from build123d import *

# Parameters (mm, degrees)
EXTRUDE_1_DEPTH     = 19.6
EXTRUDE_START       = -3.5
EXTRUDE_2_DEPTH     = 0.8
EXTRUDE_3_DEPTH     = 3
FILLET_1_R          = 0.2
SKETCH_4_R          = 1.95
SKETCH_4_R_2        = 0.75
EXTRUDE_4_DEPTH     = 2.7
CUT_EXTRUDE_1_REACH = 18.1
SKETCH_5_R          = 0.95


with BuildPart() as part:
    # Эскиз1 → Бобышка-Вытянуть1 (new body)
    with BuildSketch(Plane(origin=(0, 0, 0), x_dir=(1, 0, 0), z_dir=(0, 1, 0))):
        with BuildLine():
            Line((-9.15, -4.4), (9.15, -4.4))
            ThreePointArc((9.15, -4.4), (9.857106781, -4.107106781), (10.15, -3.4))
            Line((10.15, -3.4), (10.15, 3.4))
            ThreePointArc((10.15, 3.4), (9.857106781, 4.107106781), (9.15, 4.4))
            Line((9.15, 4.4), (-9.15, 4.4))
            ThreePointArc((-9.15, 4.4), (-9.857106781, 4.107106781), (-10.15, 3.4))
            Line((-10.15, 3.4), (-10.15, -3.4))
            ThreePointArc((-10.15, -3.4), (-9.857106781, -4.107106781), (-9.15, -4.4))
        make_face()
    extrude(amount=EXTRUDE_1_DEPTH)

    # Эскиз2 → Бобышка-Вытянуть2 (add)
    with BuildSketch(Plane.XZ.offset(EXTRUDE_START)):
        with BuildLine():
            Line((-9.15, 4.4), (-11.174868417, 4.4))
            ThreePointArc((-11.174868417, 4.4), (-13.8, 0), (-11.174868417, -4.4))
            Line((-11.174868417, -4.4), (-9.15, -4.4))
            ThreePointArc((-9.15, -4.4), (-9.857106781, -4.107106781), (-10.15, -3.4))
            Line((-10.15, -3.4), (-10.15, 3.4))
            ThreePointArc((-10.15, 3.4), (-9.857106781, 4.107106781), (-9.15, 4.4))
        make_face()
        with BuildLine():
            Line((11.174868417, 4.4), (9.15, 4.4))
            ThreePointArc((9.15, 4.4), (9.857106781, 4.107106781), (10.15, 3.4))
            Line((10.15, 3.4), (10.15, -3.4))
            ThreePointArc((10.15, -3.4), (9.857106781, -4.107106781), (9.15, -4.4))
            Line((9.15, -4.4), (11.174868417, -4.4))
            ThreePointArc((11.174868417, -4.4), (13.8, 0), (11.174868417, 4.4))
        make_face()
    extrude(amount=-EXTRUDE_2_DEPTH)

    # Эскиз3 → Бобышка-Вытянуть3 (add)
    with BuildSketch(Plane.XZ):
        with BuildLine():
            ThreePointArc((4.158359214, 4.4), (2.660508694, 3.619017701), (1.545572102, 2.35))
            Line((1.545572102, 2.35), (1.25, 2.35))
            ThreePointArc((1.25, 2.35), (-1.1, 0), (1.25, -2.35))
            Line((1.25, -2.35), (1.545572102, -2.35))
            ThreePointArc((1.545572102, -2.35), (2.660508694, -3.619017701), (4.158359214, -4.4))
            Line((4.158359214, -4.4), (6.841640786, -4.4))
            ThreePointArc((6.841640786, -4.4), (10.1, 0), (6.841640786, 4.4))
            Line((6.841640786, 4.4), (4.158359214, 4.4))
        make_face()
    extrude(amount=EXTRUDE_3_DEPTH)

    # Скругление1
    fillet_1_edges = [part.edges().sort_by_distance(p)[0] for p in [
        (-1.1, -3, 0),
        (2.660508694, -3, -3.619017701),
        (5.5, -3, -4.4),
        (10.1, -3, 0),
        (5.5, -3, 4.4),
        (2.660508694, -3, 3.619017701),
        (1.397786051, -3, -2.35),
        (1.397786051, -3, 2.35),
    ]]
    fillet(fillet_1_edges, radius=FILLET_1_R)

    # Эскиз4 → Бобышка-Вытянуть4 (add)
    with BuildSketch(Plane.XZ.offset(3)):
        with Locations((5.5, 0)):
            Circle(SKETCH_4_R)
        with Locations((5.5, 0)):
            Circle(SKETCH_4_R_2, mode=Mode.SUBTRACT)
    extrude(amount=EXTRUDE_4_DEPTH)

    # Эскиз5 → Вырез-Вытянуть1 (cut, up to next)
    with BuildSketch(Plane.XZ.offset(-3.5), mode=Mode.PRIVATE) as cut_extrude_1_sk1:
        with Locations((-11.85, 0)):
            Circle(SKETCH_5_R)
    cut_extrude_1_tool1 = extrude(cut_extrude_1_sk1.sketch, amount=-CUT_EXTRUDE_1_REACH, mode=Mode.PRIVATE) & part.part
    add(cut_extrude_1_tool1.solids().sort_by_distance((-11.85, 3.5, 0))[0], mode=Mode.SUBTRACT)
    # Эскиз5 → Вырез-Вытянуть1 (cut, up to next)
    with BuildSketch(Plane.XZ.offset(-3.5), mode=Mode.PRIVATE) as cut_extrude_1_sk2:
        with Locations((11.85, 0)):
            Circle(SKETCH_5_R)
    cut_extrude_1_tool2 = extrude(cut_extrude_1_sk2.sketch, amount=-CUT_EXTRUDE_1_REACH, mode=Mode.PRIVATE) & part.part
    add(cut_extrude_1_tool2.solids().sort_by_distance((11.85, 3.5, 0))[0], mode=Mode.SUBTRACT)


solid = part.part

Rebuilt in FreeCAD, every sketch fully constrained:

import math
import FreeCAD as App
import Part
import Sketcher
from FreeCAD import Vector


def edges_at(feature, points):
    """Names of the edges that pass closest to the given points."""
    edges = feature.Shape.Edges
    near = lambda p: min(range(len(edges)), key=lambda i: edges[i].distToShape(Part.Vertex(*p))[0])
    return sorted({f"Edge{near(p) + 1}" for p in points})

doc = App.newDocument("Part")
body = doc.addObject("PartDesign::Body", "Body")

sketch1 = doc.addObject("Sketcher::SketchObject", "Sketch")
body.addObject(sketch1)
sketch1.AttachmentSupport = (doc.XZ_Plane, [""])
sketch1.MapMode = "FlatFace"
sketch1.addGeometry(Part.LineSegment(Vector(-9.2, 4.4, 0), Vector(9.2, 4.4, 0)), False)
sketch1.addGeometry(Part.ArcOfCircle(Part.Circle(Vector(9.1, 3.4, 0), Vector(0, 0, 1), 1), math.radians(0), math.radians(90)), False)
sketch1.addGeometry(Part.LineSegment(Vector(10.2, 3.4, 0), Vector(10.2, -3.4, 0)), False)
sketch1.addGeometry(Part.ArcOfCircle(Part.Circle(Vector(9.1, -3.4, 0), Vector(0, 0, 1), 1), math.radians(-90), math.radians(0)), False)
sketch1.addGeometry(Part.LineSegment(Vector(9.2, -4.4, 0), Vector(-9.2, -4.4, 0)), False)
sketch1.addGeometry(Part.ArcOfCircle(Part.Circle(Vector(-9.1, -3.4, 0), Vector(0, 0, 1), 1), math.radians(-180), math.radians(-90)), False)
sketch1.addGeometry(Part.LineSegment(Vector(-10.2, -3.4, 0), Vector(-10.2, 3.4, 0)), False)
sketch1.addGeometry(Part.ArcOfCircle(Part.Circle(Vector(-9.1, 3.4, 0), Vector(0, 0, 1), 1), math.radians(90), math.radians(180)), False)
sketch1.addConstraint(Sketcher.Constraint("Tangent", 0, 2, 1, 2))
sketch1.addConstraint(Sketcher.Constraint("Tangent", 1, 1, 2, 1))
sketch1.addConstraint(Sketcher.Constraint("Tangent", 2, 2, 3, 2))
sketch1.addConstraint(Sketcher.Constraint("Tangent", 3, 1, 4, 1))
sketch1.addConstraint(Sketcher.Constraint("Tangent", 4, 2, 5, 2))
sketch1.addConstraint(Sketcher.Constraint("Tangent", 5, 1, 6, 1))
sketch1.addConstraint(Sketcher.Constraint("Tangent", 6, 2, 7, 2))
sketch1.addConstraint(Sketcher.Constraint("Tangent", 7, 1, 0, 1))
sketch1.addConstraint(Sketcher.Constraint("Horizontal", 0))
sketch1.addConstraint(Sketcher.Constraint("Vertical", 2))
sketch1.addConstraint(Sketcher.Constraint("Horizontal", 4))
sketch1.addConstraint(Sketcher.Constraint("Vertical", 6))
sketch1.addConstraint(Sketcher.Constraint("Equal", 1, 3))
sketch1.addConstraint(Sketcher.Constraint("Equal", 3, 5))
sketch1.addConstraint(Sketcher.Constraint("Equal", 5, 7))
sketch1.addConstraint(Sketcher.Constraint("Symmetric", 1, 3, 5, 3, -1, 1))
sketch1.addConstraint(Sketcher.Constraint("Radius", 1, 1.0))
sketch1.addConstraint(Sketcher.Constraint("DistanceX", 0, 1, 0, 2, 18.3))
sketch1.addConstraint(Sketcher.Constraint("DistanceY", 2, 2, 2, 1, 6.8))
pad1 = doc.addObject("PartDesign::Pad", "Pad")
body.addObject(pad1)
pad1.Profile = sketch1
pad1.Length = 19.6
pad1.Reversed = True

sketch2 = doc.addObject("Sketcher::SketchObject", "Sketch001")
body.addObject(sketch2)
sketch2.AttachmentSupport = (doc.XZ_Plane, [""])
sketch2.MapMode = "FlatFace"
sketch2.AttachmentOffset = App.Placement(Vector(0, 0, -3.5), App.Rotation())
sketch2.addGeometry(Part.LineSegment(Vector(-9.2, 4.4, 0), Vector(-11.2, 4.4, 0)), False)
sketch2.addGeometry(Part.ArcOfCircle(Part.Circle(Vector(-8.8, 0, 0), Vector(0, 0, 1), 5), math.radians(118), math.radians(242)), False)
sketch2.addGeometry(Part.LineSegment(Vector(-11.2, -4.4, 0), Vector(-9.2, -4.4, 0)), False)
sketch2.addGeometry(Part.ArcOfCircle(Part.Circle(Vector(-9.1, -3.4, 0), Vector(0, 0, 1), 1), math.radians(-180), math.radians(-90)), False)
sketch2.addGeometry(Part.LineSegment(Vector(-10.2, -3.4, 0), Vector(-10.2, 3.4, 0)), False)
sketch2.addGeometry(Part.ArcOfCircle(Part.Circle(Vector(-9.1, 3.4, 0), Vector(0, 0, 1), 1), math.radians(90), math.radians(180)), False)
sketch2.addGeometry(Part.LineSegment(Vector(11.2, 4.4, 0), Vector(9.2, 4.4, 0)), False)
sketch2.addGeometry(Part.ArcOfCircle(Part.Circle(Vector(9.1, 3.4, 0), Vector(0, 0, 1), 1), math.radians(0), math.radians(90)), False)
sketch2.addGeometry(Part.LineSegment(Vector(10.2, 3.4, 0), Vector(10.2, -3.4, 0)), False)
sketch2.addGeometry(Part.ArcOfCircle(Part.Circle(Vector(9.1, -3.4, 0), Vector(0, 0, 1), 1), math.radians(-90), math.radians(0)), False)
sketch2.addGeometry(Part.LineSegment(Vector(9.2, -4.4, 0), Vector(11.2, -4.4, 0)), False)
sketch2.addGeometry(Part.ArcOfCircle(Part.Circle(Vector(8.8, 0, 0), Vector(0, 0, 1), 5), math.radians(-62), math.radians(62)), False)
sketch2.addConstraint(Sketcher.Constraint("Coincident", 0, 2, 1, 1))
sketch2.addConstraint(Sketcher.Constraint("Coincident", 1, 2, 2, 1))
sketch2.addConstraint(Sketcher.Constraint("Tangent", 2, 2, 3, 2))
sketch2.addConstraint(Sketcher.Constraint("Tangent", 3, 1, 4, 1))
sketch2.addConstraint(Sketcher.Constraint("Tangent", 4, 2, 5, 2))
sketch2.addConstraint(Sketcher.Constraint("Tangent", 5, 1, 0, 1))
sketch2.addConstraint(Sketcher.Constraint("Tangent", 6, 2, 7, 2))
sketch2.addConstraint(Sketcher.Constraint("Tangent", 7, 1, 8, 1))
sketch2.addConstraint(Sketcher.Constraint("Tangent", 8, 2, 9, 2))
sketch2.addConstraint(Sketcher.Constraint("Tangent", 9, 1, 10, 1))
sketch2.addConstraint(Sketcher.Constraint("Coincident", 10, 2, 11, 1))
sketch2.addConstraint(Sketcher.Constraint("Coincident", 11, 2, 6, 1))
sketch2.addConstraint(Sketcher.Constraint("Horizontal", 0))
sketch2.addConstraint(Sketcher.Constraint("Horizontal", 2))
sketch2.addConstraint(Sketcher.Constraint("Vertical", 4))
sketch2.addConstraint(Sketcher.Constraint("Horizontal", 6))
sketch2.addConstraint(Sketcher.Constraint("Vertical", 8))
sketch2.addConstraint(Sketcher.Constraint("Horizontal", 10))
sketch2.addConstraint(Sketcher.Constraint("Equal", 3, 5))
sketch2.addConstraint(Sketcher.Constraint("Equal", 5, 7))
sketch2.addConstraint(Sketcher.Constraint("Equal", 7, 9))
sketch2.addConstraint(Sketcher.Constraint("Equal", 1, 11))
sketch2.addConstraint(Sketcher.Constraint("Symmetric", 3, 3, 7, 3, -1, 1))
sketch2.addConstraint(Sketcher.Constraint("Symmetric", 1, 3, 11, 3, -1, 1))
sketch2.addConstraint(Sketcher.Constraint("Symmetric", 1, 2, 10, 2, -2))
sketch2.addConstraint(Sketcher.Constraint("Horizontal", 5, 3, 7, 3))
sketch2.addConstraint(Sketcher.Constraint("Radius", 1, 5.0))
sketch2.addConstraint(Sketcher.Constraint("Radius", 3, 1.0))
sketch2.addConstraint(Sketcher.Constraint("DistanceY", 4, 1, 4, 2, 6.8))
sketch2.addConstraint(Sketcher.Constraint("DistanceX", 1, 3, -1, 1, 8.8))
sketch2.addConstraint(Sketcher.Constraint("DistanceX", 5, 3, 7, 3, 18.3))
pad2 = doc.addObject("PartDesign::Pad", "Pad001")
body.addObject(pad2)
pad2.Profile = sketch2
pad2.Length = 0.8
pad2.Reversed = True

sketch3 = doc.addObject("Sketcher::SketchObject", "Sketch002")
body.addObject(sketch3)
sketch3.AttachmentSupport = (doc.XZ_Plane, [""])
sketch3.MapMode = "FlatFace"
sketch3.addGeometry(Part.ArcOfCircle(Part.Circle(Vector(5.5, 0, 0), Vector(0, 0, 1), 4.6), math.radians(107), math.radians(149)), False)
sketch3.addGeometry(Part.LineSegment(Vector(1.55, 2.35, 0), Vector(1.25, 2.35, 0)), False)
sketch3.addGeometry(Part.ArcOfCircle(Part.Circle(Vector(1.25, 0, 0), Vector(0, 0, 1), 2.35), math.radians(90), math.radians(270)), False)
sketch3.addGeometry(Part.LineSegment(Vector(1.25, -2.35, 0), Vector(1.55, -2.35, 0)), False)
sketch3.addGeometry(Part.ArcOfCircle(Part.Circle(Vector(5.5, 0, 0), Vector(0, 0, 1), 4.6), math.radians(-149), math.radians(-107)), False)
sketch3.addGeometry(Part.LineSegment(Vector(4.16, -4.4, 0), Vector(6.84, -4.4, 0)), False)
sketch3.addGeometry(Part.ArcOfCircle(Part.Circle(Vector(5.5, 0, 0), Vector(0, 0, 1), 4.6), math.radians(-73), math.radians(73)), False)
sketch3.addGeometry(Part.LineSegment(Vector(6.84, 4.4, 0), Vector(4.16, 4.4, 0)), False)
sketch3.addConstraint(Sketcher.Constraint("Coincident", 0, 2, 1, 1))
sketch3.addConstraint(Sketcher.Constraint("Tangent", 1, 2, 2, 1))
sketch3.addConstraint(Sketcher.Constraint("Tangent", 2, 2, 3, 1))
sketch3.addConstraint(Sketcher.Constraint("Coincident", 3, 2, 4, 1))
sketch3.addConstraint(Sketcher.Constraint("Coincident", 4, 2, 5, 1))
sketch3.addConstraint(Sketcher.Constraint("Coincident", 5, 2, 6, 1))
sketch3.addConstraint(Sketcher.Constraint("Coincident", 6, 2, 7, 1))
sketch3.addConstraint(Sketcher.Constraint("Coincident", 7, 2, 0, 1))
sketch3.addConstraint(Sketcher.Constraint("Horizontal", 1))
sketch3.addConstraint(Sketcher.Constraint("Horizontal", 3))
sketch3.addConstraint(Sketcher.Constraint("Horizontal", 5))
sketch3.addConstraint(Sketcher.Constraint("Horizontal", 7))
sketch3.addConstraint(Sketcher.Constraint("Coincident", 4, 3, 0, 3))
sketch3.addConstraint(Sketcher.Constraint("Coincident", 6, 3, 0, 3))
sketch3.addConstraint(Sketcher.Constraint("Equal", 0, 4))
sketch3.addConstraint(Sketcher.Constraint("Equal", 4, 6))
sketch3.addConstraint(Sketcher.Constraint("Symmetric", 0, 2, 3, 2, -1))
sketch3.addConstraint(Sketcher.Constraint("Vertical", 5, 2, 6, 2))
sketch3.addConstraint(Sketcher.Constraint("Radius", 0, 4.6))
sketch3.addConstraint(Sketcher.Constraint("Radius", 2, 2.35))
sketch3.addConstraint(Sketcher.Constraint("DistanceX", -1, 1, 0, 3, 5.5))
sketch3.addConstraint(Sketcher.Constraint("DistanceY", 4, 2, -1, 1, 4.4))
sketch3.addConstraint(Sketcher.Constraint("DistanceX", -1, 1, 2, 3, 1.25))
pad3 = doc.addObject("PartDesign::Pad", "Pad002")
body.addObject(pad3)
pad3.Profile = sketch3
pad3.Length = 3
doc.recompute()

fillet = doc.addObject("PartDesign::Fillet", "Fillet")
body.addObject(fillet)
fillet.Base = (pad3, edges_at(pad3, [
    (-1.1, -3, 0),
    (2.661, -3, -3.619),
    (5.5, -3, -4.4),
    (10.1, -3, 0),
    (5.5, -3, 4.4),
    (2.661, -3, 3.619),
    (1.398, -3, -2.35),
    (1.398, -3, 2.35),
]))
fillet.Radius = 0.2

sketch4 = doc.addObject("Sketcher::SketchObject", "Sketch003")
body.addObject(sketch4)
sketch4.AttachmentSupport = (doc.XZ_Plane, [""])
sketch4.MapMode = "FlatFace"
sketch4.AttachmentOffset = App.Placement(Vector(0, 0, 3), App.Rotation())
sketch4.addGeometry(Part.Circle(Vector(5.5, 0, 0), Vector(0, 0, 1), 1.9), False)
sketch4.addGeometry(Part.Circle(Vector(5.5, 0, 0), Vector(0, 0, 1), 0.8), False)
sketch4.addConstraint(Sketcher.Constraint("Coincident", 1, 3, 0, 3))
sketch4.addConstraint(Sketcher.Constraint("PointOnObject", 0, 3, -1))
sketch4.addConstraint(Sketcher.Constraint("Diameter", 0, 3.9))
sketch4.addConstraint(Sketcher.Constraint("Diameter", 1, 1.5))
sketch4.addConstraint(Sketcher.Constraint("DistanceX", -1, 1, 0, 3, 5.5))
pad4 = doc.addObject("PartDesign::Pad", "Pad003")
body.addObject(pad4)
pad4.Profile = sketch4
pad4.Length = 2.7

sketch5 = doc.addObject("Sketcher::SketchObject", "Sketch004")
body.addObject(sketch5)
sketch5.AttachmentSupport = (doc.XZ_Plane, [""])
sketch5.MapMode = "FlatFace"
sketch5.AttachmentOffset = App.Placement(Vector(0, 0, -3.5), App.Rotation())
sketch5.addGeometry(Part.Circle(Vector(-11.8, 0, 0), Vector(0, 0, 1), 0.9), False)
sketch5.addConstraint(Sketcher.Constraint("PointOnObject", 0, 3, -1))
sketch5.addConstraint(Sketcher.Constraint("Diameter", 0, 1.9))
sketch5.addConstraint(Sketcher.Constraint("DistanceX", 0, 3, -1, 1, 11.85))
pocket1 = doc.addObject("PartDesign::Pocket", "Pocket")
body.addObject(pocket1)
pocket1.Profile = sketch5
pocket1.Type = "UpToFirst"

sketch6 = doc.addObject("Sketcher::SketchObject", "Sketch005")
body.addObject(sketch6)
sketch6.AttachmentSupport = (doc.XZ_Plane, [""])
sketch6.MapMode = "FlatFace"
sketch6.AttachmentOffset = App.Placement(Vector(0, 0, -3.5), App.Rotation())
sketch6.addGeometry(Part.Circle(Vector(11.8, 0, 0), Vector(0, 0, 1), 0.9), False)
sketch6.addConstraint(Sketcher.Constraint("PointOnObject", 0, 3, -1))
sketch6.addConstraint(Sketcher.Constraint("Diameter", 0, 1.9))
sketch6.addConstraint(Sketcher.Constraint("DistanceX", -1, 1, 0, 3, 11.85))
pocket2 = doc.addObject("PartDesign::Pocket", "Pocket001")
body.addObject(pocket2)
pocket2.Profile = sketch6
pocket2.Type = "UpToFirst"

doc.recompute()
